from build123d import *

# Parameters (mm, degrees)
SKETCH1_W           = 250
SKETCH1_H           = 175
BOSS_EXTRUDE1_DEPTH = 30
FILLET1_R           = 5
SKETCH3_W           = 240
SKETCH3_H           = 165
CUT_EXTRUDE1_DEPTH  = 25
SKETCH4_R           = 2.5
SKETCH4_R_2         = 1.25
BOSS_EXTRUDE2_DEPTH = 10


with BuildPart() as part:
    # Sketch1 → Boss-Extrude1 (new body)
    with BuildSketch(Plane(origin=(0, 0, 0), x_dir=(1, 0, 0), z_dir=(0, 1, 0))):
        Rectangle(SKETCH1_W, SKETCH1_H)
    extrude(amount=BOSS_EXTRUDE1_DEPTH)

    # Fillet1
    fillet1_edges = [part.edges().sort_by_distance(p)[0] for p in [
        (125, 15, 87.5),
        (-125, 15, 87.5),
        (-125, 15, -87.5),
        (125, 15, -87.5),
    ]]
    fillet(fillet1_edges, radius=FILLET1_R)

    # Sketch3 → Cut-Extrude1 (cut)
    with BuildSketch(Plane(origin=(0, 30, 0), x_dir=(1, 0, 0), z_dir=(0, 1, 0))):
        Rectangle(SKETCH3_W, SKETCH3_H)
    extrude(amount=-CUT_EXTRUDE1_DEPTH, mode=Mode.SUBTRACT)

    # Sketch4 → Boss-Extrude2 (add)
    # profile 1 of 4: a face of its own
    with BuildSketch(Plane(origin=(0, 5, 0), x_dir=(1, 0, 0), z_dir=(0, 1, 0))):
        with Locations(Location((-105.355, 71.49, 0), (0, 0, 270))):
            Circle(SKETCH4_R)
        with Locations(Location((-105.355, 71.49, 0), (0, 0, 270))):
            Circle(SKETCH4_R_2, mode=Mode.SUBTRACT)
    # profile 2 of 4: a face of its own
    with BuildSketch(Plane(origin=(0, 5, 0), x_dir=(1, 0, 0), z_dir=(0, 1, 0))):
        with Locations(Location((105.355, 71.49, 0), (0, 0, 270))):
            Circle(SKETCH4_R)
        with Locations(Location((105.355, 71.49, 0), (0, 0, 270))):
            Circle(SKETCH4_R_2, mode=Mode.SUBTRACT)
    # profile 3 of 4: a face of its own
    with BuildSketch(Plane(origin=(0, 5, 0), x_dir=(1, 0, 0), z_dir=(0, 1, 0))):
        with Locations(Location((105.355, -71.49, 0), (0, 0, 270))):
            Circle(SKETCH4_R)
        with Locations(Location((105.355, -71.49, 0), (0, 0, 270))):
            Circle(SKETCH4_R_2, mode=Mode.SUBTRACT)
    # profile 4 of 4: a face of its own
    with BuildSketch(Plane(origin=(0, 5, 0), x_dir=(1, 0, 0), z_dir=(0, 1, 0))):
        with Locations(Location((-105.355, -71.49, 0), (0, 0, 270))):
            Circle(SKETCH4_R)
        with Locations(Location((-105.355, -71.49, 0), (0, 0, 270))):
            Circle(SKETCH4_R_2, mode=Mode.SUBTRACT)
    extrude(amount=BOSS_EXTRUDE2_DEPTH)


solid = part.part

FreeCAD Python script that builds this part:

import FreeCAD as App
import Part
import Sketcher

V = App.Vector
Q = App.Units.Quantity


def edges_at(feature, points):
    """Names of the edges that pass closest to the given points."""
    edges = feature.Shape.Edges
    near = lambda p: min(range(len(edges)), key=lambda i: edges[i].distToShape(Part.Vertex(*p))[0])
    return sorted({f"Edge{near(p) + 1}" for p in points})


def add_polygon(sketch, points):
    """Adds a closed chain of lines whose ends are joined by coincident constraints."""
    first, n = sketch.GeometryCount, len(points)
    for a, b in zip(points, points[1:] + points[:1]):
        sketch.addGeometry(Part.LineSegment(App.Vector(*a, 0), App.Vector(*b, 0)), False)
    for i in range(n):
        sketch.addConstraint(Sketcher.Constraint("Coincident", first + i, 2, first + (i + 1) % n, 1))

doc = App.newDocument("Part")
body = doc.addObject("PartDesign::Body", "Body")

# Sketch on XZ plane
sketch1 = doc.addObject("Sketcher::SketchObject", "Sketch")
body.addObject(sketch1)
sketch1.AttachmentSupport = (doc.XZ_Plane, [""])
sketch1.MapMode = "FlatFace"
add_polygon(sketch1, [(-125, -88), (-125, 88), (125, 88), (125, -88)])  # lines 0-3
sketch1.addConstraint(Sketcher.Constraint("Vertical", 0))
sketch1.addConstraint(Sketcher.Constraint("Horizontal", 1))
sketch1.addConstraint(Sketcher.Constraint("Vertical", 2))
sketch1.addConstraint(Sketcher.Constraint("Horizontal", 3))
sketch1.addConstraint(Sketcher.Constraint("Symmetric", 0, 2, 2, 2, -1, 1))
sketch1.addConstraint(Sketcher.Constraint("DistanceX", 1, 1, 1, 2, Q("250 mm")))
sketch1.addConstraint(Sketcher.Constraint("DistanceY", 0, 1, 0, 2, Q("175 mm")))
pad1 = doc.addObject("PartDesign::Pad", "Pad")
body.addObject(pad1)
pad1.Profile = sketch1
pad1.Length = 30
pad1.Reversed = True
doc.recompute()

fillet = doc.addObject("PartDesign::Fillet", "Fillet")
body.addObject(fillet)
fillet.Base = (pad1, edges_at(pad1, [
    (125, 15, 87.5),
    (-125, 15, 87.5),
    (-125, 15, -87.5),
    (125, 15, -87.5),
]))
fillet.Radius = 5

# Sketch on XZ plane
sketch2 = doc.addObject("Sketcher::SketchObject", "Sketch001")
body.addObject(sketch2)
sketch2.AttachmentSupport = (doc.XZ_Plane, [""])
sketch2.MapMode = "FlatFace"
sketch2.AttachmentOffset = App.Placement(V(0, 0, -30), App.Rotation())
add_polygon(sketch2, [(-120, -82), (-120, 82), (120, 82), (120, -82)])  # lines 0-3
sketch2.addConstraint(Sketcher.Constraint("Vertical", 0))
sketch2.addConstraint(Sketcher.Constraint("Horizontal", 1))
sketch2.addConstraint(Sketcher.Constraint("Vertical", 2))
sketch2.addConstraint(Sketcher.Constraint("Horizontal", 3))
sketch2.addConstraint(Sketcher.Constraint("Symmetric", 0, 2, 2, 2, -1, 1))
sketch2.addConstraint(Sketcher.Constraint("DistanceX", 1, 1, 1, 2, Q("240 mm")))
sketch2.addConstraint(Sketcher.Constraint("DistanceY", 0, 1, 0, 2, Q("165 mm")))
pocket1 = doc.addObject("PartDesign::Pocket", "Pocket")
body.addObject(pocket1)
pocket1.Profile = sketch2
pocket1.Length = 25
pocket1.Reversed = True

# Sketch on XZ plane
sketch3 = doc.addObject("Sketcher::SketchObject", "Sketch002")
body.addObject(sketch3)
sketch3.AttachmentSupport = (doc.XZ_Plane, [""])
sketch3.MapMode = "FlatFace"
sketch3.AttachmentOffset = App.Placement(V(0, 0, -5), App.Rotation())
sketch3.addGeometry(Part.Circle(V(-105.4, -71.5, 0), V(0, 0, 1), 2.5), False)
sketch3.addGeometry(Part.Circle(V(-105.4, -71.5, 0), V(0, 0, 1), 1.2), False)
sketch3.addGeometry(Part.Circle(V(105.4, -71.5, 0), V(0, 0, 1), 2.5), False)
sketch3.addGeometry(Part.Circle(V(105.4, -71.5, 0), V(0, 0, 1), 1.2), False)
sketch3.addGeometry(Part.Circle(V(105.4, 71.5, 0), V(0, 0, 1), 2.5), False)
sketch3.addGeometry(Part.Circle(V(105.4, 71.5, 0), V(0, 0, 1), 1.2), False)
sketch3.addGeometry(Part.Circle(V(-105.4, 71.5, 0), V(0, 0, 1), 2.5), False)
sketch3.addGeometry(Part.Circle(V(-105.4, 71.5, 0), V(0, 0, 1), 1.2), False)
sketch3.addConstraint(Sketcher.Constraint("Coincident", 1, 3, 0, 3))
sketch3.addConstraint(Sketcher.Constraint("Coincident", 3, 3, 2, 3))
sketch3.addConstraint(Sketcher.Constraint("Coincident", 5, 3, 4, 3))
sketch3.addConstraint(Sketcher.Constraint("Coincident", 7, 3, 6, 3))
sketch3.addConstraint(Sketcher.Constraint("Equal", 0, 2))
sketch3.addConstraint(Sketcher.Constraint("Equal", 1, 3))
sketch3.addConstraint(Sketcher.Constraint("Equal", 2, 4))
sketch3.addConstraint(Sketcher.Constraint("Equal", 3, 5))
sketch3.addConstraint(Sketcher.Constraint("Equal", 4, 6))
sketch3.addConstraint(Sketcher.Constraint("Equal", 5, 7))
sketch3.addConstraint(Sketcher.Constraint("Symmetric", 0, 3, 4, 3, -1, 1))
sketch3.addConstraint(Sketcher.Constraint("Symmetric", 2, 3, 6, 3, -1, 1))
sketch3.addConstraint(Sketcher.Constraint("Symmetric", 0, 3, 2, 3, -2))
sketch3.addConstraint(Sketcher.Constraint("Diameter", 0, Q("5 mm")))
sketch3.addConstraint(Sketcher.Constraint("Diameter", 1, Q("2.5 mm")))
sketch3.addConstraint(Sketcher.Constraint("DistanceY", 0, 3, -1, 1, Q("71.49 mm")))
sketch3.addConstraint(Sketcher.Constraint("DistanceX", 0, 3, 2, 3, Q("210.71 mm")))
pad2 = doc.addObject("PartDesign::Pad", "Pad001")
body.addObject(pad2)
pad2.Profile = sketch3
pad2.Length = 10
pad2.Reversed = True

doc.recompute()
